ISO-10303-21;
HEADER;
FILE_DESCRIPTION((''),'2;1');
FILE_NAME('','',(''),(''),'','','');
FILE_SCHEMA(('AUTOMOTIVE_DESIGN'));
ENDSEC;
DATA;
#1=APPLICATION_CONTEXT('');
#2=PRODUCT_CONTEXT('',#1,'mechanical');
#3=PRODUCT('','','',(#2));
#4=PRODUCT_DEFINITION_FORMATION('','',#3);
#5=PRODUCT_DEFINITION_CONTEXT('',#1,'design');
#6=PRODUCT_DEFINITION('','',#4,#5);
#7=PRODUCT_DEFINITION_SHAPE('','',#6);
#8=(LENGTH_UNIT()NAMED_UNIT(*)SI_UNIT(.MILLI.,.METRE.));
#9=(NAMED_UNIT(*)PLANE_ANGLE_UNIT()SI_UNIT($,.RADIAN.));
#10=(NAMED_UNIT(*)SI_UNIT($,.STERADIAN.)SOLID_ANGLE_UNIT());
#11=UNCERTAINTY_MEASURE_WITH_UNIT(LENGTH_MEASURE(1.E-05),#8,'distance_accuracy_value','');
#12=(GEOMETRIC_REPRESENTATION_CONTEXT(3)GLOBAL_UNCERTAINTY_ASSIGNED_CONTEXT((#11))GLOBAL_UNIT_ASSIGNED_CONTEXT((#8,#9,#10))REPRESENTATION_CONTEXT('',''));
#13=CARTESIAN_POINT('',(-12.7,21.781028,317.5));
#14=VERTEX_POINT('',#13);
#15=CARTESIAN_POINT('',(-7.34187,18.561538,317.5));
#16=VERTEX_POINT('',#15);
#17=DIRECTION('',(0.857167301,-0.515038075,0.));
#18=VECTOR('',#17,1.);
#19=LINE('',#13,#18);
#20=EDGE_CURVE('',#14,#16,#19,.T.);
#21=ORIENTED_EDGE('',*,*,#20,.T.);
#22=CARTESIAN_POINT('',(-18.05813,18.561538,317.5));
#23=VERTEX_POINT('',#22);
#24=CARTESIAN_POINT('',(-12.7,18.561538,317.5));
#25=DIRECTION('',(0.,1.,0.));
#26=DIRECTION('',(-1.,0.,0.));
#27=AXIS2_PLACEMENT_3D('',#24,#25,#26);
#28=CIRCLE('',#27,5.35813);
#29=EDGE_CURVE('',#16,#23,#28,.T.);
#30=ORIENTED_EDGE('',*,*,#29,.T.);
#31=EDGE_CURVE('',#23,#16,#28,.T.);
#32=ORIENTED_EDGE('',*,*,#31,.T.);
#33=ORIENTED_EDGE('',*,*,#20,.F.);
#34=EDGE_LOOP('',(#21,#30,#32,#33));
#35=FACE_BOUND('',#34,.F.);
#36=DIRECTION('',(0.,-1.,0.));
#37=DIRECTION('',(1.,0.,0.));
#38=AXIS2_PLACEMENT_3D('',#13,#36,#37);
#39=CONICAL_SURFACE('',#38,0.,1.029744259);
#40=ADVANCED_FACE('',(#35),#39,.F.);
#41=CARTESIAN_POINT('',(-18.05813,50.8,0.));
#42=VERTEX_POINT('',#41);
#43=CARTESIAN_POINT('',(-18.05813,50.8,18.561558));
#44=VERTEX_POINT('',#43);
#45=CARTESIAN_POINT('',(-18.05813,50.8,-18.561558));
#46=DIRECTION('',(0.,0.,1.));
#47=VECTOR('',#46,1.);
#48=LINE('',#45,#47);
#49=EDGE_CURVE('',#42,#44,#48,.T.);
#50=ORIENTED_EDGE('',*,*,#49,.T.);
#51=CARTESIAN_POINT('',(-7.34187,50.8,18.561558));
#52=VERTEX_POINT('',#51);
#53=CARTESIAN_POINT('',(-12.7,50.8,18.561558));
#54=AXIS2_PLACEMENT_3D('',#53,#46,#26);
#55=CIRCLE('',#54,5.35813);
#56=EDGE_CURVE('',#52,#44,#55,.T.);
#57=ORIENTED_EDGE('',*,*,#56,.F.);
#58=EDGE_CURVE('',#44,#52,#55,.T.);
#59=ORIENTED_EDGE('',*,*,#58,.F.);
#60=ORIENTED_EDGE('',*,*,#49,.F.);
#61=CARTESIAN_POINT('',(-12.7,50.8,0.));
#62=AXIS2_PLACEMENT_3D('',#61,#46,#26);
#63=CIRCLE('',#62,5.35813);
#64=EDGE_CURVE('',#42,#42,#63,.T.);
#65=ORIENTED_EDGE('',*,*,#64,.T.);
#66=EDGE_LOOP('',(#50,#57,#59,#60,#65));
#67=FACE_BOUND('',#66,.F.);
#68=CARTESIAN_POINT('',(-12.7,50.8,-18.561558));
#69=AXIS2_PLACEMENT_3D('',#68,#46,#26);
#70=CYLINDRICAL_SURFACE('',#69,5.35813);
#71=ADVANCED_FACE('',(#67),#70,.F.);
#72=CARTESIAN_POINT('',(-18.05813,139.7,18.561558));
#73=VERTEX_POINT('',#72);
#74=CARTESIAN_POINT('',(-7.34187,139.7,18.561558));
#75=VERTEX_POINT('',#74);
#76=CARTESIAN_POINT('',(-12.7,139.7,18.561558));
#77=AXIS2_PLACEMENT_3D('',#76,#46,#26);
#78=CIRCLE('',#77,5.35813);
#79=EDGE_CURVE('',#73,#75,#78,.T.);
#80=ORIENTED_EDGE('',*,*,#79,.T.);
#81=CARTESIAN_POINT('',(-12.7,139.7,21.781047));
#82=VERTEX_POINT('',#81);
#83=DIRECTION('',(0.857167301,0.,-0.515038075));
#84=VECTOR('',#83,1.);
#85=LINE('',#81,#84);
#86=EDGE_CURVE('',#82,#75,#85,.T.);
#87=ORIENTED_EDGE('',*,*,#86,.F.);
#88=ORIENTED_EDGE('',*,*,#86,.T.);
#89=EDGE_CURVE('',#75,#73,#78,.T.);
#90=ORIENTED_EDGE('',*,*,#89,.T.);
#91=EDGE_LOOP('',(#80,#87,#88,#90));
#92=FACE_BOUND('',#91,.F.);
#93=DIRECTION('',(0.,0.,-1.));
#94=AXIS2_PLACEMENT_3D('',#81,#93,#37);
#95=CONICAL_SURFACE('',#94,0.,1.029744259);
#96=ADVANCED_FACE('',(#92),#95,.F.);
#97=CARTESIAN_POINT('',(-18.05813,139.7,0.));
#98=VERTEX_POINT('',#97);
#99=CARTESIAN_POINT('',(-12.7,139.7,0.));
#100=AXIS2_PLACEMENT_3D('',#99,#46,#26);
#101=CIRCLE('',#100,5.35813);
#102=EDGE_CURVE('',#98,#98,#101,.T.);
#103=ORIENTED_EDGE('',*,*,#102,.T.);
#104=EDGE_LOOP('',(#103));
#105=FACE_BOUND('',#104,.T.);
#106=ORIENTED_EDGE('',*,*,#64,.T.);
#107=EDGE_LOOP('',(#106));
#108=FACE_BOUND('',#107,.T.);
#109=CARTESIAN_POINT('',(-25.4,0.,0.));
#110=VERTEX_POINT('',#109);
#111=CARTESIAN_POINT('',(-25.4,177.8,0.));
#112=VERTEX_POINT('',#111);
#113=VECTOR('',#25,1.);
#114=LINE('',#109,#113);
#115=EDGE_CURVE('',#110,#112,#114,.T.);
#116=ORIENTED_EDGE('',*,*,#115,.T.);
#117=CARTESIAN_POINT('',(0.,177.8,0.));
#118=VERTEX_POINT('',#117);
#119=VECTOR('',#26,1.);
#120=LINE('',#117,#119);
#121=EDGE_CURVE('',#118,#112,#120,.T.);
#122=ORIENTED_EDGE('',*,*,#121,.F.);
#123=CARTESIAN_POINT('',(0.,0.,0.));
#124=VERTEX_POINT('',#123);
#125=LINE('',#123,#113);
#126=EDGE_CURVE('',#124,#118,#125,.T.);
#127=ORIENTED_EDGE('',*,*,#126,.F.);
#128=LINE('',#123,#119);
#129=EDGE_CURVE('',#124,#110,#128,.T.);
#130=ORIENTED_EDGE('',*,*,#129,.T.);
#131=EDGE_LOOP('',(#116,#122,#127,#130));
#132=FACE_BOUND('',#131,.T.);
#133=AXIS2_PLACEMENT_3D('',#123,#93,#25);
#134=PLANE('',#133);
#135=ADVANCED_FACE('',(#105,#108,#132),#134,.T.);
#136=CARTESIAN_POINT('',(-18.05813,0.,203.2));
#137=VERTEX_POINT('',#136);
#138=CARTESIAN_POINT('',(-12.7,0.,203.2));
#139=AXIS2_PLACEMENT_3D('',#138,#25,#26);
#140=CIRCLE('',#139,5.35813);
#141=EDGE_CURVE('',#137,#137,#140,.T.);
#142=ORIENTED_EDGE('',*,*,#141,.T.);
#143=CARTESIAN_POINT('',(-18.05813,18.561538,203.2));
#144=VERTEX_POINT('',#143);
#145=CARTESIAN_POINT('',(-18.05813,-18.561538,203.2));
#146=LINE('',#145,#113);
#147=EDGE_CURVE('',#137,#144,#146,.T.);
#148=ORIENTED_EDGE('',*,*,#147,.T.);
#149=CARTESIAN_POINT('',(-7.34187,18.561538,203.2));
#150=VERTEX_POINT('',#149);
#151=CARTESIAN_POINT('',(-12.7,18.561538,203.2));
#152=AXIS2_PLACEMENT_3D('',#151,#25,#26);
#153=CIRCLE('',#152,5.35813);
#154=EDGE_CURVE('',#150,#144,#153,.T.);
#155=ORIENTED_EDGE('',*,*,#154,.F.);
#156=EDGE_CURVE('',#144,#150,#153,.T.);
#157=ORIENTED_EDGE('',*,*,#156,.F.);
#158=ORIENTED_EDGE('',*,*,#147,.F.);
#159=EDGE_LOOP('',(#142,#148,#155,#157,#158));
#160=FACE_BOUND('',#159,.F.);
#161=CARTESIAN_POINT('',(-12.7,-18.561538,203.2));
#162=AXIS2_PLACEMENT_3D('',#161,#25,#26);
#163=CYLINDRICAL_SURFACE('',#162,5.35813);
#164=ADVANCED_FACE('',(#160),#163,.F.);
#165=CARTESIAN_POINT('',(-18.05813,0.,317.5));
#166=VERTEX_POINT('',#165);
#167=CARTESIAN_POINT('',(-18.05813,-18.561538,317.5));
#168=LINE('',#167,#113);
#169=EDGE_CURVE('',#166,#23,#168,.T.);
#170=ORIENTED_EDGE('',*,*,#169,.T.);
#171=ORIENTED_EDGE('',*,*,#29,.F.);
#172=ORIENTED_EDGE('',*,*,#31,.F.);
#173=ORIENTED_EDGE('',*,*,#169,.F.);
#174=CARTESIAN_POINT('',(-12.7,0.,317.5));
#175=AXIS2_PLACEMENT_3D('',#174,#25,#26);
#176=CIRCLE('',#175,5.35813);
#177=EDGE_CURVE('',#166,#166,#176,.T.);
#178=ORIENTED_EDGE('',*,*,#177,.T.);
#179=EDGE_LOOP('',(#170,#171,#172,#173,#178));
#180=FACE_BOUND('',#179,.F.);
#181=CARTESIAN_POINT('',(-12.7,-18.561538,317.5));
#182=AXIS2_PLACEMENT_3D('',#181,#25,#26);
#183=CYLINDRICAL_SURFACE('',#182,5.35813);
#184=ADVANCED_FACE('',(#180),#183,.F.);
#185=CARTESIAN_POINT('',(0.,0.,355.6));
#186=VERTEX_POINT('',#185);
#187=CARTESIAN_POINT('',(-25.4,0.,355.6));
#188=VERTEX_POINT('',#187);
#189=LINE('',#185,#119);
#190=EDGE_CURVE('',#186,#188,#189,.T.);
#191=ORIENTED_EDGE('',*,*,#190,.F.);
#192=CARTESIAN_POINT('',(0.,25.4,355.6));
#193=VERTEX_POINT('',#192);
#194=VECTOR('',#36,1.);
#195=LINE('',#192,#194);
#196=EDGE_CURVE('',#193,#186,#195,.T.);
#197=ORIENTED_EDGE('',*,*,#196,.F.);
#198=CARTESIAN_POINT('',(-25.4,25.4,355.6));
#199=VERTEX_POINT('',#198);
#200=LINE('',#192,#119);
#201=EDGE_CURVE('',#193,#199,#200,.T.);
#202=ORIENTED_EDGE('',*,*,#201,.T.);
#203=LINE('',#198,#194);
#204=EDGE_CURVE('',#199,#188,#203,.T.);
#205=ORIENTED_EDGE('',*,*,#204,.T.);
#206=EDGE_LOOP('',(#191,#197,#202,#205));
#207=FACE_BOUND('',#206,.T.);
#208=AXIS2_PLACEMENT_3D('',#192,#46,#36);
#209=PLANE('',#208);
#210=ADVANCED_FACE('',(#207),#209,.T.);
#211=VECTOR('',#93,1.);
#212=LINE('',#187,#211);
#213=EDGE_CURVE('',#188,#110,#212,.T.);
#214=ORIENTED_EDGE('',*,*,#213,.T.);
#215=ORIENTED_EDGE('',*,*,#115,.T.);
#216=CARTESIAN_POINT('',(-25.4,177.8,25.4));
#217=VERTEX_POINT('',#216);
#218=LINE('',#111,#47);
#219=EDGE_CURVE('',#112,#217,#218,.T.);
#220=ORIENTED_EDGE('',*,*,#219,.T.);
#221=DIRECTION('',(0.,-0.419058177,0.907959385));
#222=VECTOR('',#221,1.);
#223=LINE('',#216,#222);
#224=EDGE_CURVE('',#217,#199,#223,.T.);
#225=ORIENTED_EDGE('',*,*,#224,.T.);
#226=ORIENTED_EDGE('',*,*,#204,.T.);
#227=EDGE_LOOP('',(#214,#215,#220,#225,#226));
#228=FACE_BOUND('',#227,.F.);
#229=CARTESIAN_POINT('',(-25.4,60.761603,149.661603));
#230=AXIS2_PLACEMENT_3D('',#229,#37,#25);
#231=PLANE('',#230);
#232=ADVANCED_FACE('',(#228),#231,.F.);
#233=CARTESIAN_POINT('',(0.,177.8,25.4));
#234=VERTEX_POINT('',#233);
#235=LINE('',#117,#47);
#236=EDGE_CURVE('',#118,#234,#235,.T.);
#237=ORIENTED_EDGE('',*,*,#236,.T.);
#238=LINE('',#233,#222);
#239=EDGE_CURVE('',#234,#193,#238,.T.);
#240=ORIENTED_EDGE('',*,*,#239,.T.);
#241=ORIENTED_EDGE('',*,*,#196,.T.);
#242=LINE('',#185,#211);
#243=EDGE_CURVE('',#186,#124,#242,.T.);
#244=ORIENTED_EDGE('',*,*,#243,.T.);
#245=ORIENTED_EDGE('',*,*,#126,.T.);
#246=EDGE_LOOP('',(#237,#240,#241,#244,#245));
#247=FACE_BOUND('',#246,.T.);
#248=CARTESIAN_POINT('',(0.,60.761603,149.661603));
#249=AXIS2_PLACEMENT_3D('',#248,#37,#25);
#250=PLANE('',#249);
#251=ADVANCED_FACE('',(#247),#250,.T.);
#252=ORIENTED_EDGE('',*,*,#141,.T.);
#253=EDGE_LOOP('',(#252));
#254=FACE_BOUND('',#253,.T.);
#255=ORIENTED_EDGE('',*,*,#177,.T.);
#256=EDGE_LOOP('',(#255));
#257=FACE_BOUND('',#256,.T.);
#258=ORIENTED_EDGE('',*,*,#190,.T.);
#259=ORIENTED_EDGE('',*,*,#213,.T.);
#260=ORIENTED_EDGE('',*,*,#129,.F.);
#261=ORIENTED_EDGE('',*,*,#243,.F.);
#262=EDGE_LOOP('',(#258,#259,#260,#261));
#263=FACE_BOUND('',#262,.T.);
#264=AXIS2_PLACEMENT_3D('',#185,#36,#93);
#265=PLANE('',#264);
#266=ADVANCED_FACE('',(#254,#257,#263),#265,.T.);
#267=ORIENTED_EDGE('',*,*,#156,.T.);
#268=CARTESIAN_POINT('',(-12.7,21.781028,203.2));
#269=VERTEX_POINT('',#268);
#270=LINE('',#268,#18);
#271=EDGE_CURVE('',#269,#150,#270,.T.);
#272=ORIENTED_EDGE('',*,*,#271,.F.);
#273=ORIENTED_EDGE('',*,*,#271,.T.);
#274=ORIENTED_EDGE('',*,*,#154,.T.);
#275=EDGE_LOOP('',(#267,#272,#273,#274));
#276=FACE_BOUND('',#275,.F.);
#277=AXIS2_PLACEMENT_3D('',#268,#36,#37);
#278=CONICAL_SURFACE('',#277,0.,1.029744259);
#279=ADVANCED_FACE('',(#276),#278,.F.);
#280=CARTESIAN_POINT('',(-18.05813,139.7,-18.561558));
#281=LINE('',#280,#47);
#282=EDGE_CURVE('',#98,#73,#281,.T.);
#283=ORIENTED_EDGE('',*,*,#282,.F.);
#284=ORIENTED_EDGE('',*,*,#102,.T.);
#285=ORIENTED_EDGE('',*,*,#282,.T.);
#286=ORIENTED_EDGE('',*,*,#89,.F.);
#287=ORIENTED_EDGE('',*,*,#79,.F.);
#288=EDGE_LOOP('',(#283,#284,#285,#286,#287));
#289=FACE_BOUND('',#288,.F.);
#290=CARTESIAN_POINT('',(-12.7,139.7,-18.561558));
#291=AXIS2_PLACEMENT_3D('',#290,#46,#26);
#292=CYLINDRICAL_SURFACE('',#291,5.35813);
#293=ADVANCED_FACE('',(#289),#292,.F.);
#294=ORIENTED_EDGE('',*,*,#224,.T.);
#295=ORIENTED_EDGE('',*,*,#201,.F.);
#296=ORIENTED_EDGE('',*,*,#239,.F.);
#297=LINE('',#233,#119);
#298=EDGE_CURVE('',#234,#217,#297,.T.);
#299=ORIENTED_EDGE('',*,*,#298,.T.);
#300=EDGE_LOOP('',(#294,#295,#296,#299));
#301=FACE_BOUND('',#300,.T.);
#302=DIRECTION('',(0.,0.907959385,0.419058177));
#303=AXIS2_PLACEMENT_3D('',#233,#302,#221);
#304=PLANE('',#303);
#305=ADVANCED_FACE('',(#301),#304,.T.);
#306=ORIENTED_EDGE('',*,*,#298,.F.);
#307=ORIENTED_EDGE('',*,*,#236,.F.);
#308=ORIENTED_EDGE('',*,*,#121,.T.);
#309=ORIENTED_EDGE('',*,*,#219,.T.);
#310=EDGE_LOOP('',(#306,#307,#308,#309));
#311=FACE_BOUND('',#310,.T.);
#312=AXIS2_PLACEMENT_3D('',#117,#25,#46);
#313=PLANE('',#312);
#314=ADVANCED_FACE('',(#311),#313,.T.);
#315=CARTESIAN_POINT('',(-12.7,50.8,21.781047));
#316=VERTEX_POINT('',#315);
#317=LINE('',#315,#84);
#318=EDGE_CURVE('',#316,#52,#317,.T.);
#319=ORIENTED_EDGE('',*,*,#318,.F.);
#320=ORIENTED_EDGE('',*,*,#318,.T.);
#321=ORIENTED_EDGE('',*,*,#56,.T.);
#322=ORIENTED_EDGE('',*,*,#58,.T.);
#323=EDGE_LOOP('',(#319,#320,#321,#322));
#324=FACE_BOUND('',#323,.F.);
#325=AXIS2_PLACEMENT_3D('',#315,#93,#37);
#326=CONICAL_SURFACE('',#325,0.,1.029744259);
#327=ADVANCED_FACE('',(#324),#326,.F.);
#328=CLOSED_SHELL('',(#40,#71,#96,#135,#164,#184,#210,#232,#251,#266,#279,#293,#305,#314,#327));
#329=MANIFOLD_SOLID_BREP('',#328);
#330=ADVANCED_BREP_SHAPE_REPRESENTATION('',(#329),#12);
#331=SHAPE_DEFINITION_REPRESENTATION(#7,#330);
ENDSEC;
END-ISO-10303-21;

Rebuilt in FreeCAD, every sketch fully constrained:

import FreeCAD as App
import Part
import Sketcher
from FreeCAD import Vector
Q = App.Units.Quantity


def add_polygon(sketch, points):
    """Adds a closed chain of lines whose ends are joined by coincident constraints."""
    first, n = sketch.GeometryCount, len(points)
    for a, b in zip(points, points[1:] + points[:1]):
        sketch.addGeometry(Part.LineSegment(App.Vector(*a, 0), App.Vector(*b, 0)), False)
    for i in range(n):
        sketch.addConstraint(Sketcher.Constraint("Coincident", first + i, 2, first + (i + 1) % n, 1))

doc = App.newDocument("Part")
body = doc.addObject("PartDesign::Body", "Body")

# Sketch on YZ plane
sketch1 = body.newObject("Sketcher::SketchObject", "Sketch")
sketch1.AttachmentSupport = (doc.getObject("YZ_Plane"), [""])
sketch1.MapMode = "FlatFace"
add_polygon(sketch1, [(0, 356), (0, 0), (178, 0), (178, 25), (25, 356)])  # lines 0-4
sketch1.addConstraint([
    Sketcher.Constraint("Vertical", 0),
    Sketcher.Constraint("Horizontal", 1),
    Sketcher.Constraint("Vertical", 2),
    Sketcher.Constraint("Horizontal", 4),
    Sketcher.Constraint("Coincident", 0, 2, -1, 1),
    Sketcher.Constraint("Equal", 4, 2),
    Sketcher.Constraint("DistanceX", 1, 1, 1, 2, Q("7 in")),
    Sketcher.Constraint("DistanceX", 4, 2, 4, 1, Q("1 in")),
    Sketcher.Constraint("DistanceY", 0, 2, 0, 1, Q("14 in")),
])
pad1 = body.newObject("PartDesign::Pad", "Pad")
pad1.Profile = sketch1
pad1.Length = Q("1 in")
pad1.Reversed = True

# Sketch on XZ plane
sketch2 = body.newObject("Sketcher::SketchObject", "Sketch001")
sketch2.AttachmentSupport = (doc.getObject("XZ_Plane"), [""])
sketch2.MapMode = "FlatFace"
sketch2.addGeometry([
    Part.Circle(Vector(-13, 318, 0), Vector(0, 0, 1), 5),
    Part.Circle(Vector(-13, 203, 0), Vector(0, 0, 1), 5),
], False)
sketch2.addConstraint([
    Sketcher.Constraint("Equal", 0, 1),
    Sketcher.Constraint("Vertical", 0, 3, 1, 3),
    Sketcher.Constraint("DistanceY", -1, 1, 1, 3, Q("8 in")),
    Sketcher.Constraint("Diameter", 0, Q("0.4219 in")),
    Sketcher.Constraint("DistanceX", 0, 3, -1, 1, Q("0.5 in")),
    Sketcher.Constraint("DistanceY", -1, 1, 0, 3, Q("12.5 in")),
])
doc.recompute()
hole = body.newObject("PartDesign::Hole", "Hole")
hole.Profile = sketch2
hole.ThreadType = "None"
hole.Diameter = Q("0.4219 in")
hole.DepthType = "Dimension"
hole.Depth = 18.561538
hole.DrillPoint = "Angled"
hole.DrillPointAngle = 118

# Sketch on XY plane
sketch3 = body.newObject("Sketcher::SketchObject", "Sketch002")
sketch3.AttachmentSupport = (doc.getObject("XY_Plane"), [""])
sketch3.MapMode = "FlatFace"
sketch3.addGeometry([
    Part.Circle(Vector(-13, 51, 0), Vector(0, 0, 1), 5),
    Part.Circle(Vector(-13, 140, 0), Vector(0, 0, 1), 5),
], False)
sketch3.addConstraint([
    Sketcher.Constraint("Equal", 0, 1),
    Sketcher.Constraint("Vertical", 0, 3, 1, 3),
    Sketcher.Constraint("DistanceY", -1, 1, 0, 3, Q("2 in")),
    Sketcher.Constraint("Diameter", 0, Q("0.4219 in")),
    Sketcher.Constraint("DistanceX", 0, 3, -1, 1, Q("0.5 in")),
    Sketcher.Constraint("DistanceY", -1, 1, 1, 3, Q("5.5 in")),
])
doc.recompute()
hole2 = body.newObject("PartDesign::Hole", "Hole001")
hole2.Profile = sketch3
hole2.ThreadType = "None"
hole2.Diameter = Q("0.4219 in")
hole2.DepthType = "Dimension"
hole2.Depth = 18.561558
hole2.DrillPoint = "Angled"
hole2.DrillPointAngle = 118
hole2.Reversed = True

doc.recompute()
